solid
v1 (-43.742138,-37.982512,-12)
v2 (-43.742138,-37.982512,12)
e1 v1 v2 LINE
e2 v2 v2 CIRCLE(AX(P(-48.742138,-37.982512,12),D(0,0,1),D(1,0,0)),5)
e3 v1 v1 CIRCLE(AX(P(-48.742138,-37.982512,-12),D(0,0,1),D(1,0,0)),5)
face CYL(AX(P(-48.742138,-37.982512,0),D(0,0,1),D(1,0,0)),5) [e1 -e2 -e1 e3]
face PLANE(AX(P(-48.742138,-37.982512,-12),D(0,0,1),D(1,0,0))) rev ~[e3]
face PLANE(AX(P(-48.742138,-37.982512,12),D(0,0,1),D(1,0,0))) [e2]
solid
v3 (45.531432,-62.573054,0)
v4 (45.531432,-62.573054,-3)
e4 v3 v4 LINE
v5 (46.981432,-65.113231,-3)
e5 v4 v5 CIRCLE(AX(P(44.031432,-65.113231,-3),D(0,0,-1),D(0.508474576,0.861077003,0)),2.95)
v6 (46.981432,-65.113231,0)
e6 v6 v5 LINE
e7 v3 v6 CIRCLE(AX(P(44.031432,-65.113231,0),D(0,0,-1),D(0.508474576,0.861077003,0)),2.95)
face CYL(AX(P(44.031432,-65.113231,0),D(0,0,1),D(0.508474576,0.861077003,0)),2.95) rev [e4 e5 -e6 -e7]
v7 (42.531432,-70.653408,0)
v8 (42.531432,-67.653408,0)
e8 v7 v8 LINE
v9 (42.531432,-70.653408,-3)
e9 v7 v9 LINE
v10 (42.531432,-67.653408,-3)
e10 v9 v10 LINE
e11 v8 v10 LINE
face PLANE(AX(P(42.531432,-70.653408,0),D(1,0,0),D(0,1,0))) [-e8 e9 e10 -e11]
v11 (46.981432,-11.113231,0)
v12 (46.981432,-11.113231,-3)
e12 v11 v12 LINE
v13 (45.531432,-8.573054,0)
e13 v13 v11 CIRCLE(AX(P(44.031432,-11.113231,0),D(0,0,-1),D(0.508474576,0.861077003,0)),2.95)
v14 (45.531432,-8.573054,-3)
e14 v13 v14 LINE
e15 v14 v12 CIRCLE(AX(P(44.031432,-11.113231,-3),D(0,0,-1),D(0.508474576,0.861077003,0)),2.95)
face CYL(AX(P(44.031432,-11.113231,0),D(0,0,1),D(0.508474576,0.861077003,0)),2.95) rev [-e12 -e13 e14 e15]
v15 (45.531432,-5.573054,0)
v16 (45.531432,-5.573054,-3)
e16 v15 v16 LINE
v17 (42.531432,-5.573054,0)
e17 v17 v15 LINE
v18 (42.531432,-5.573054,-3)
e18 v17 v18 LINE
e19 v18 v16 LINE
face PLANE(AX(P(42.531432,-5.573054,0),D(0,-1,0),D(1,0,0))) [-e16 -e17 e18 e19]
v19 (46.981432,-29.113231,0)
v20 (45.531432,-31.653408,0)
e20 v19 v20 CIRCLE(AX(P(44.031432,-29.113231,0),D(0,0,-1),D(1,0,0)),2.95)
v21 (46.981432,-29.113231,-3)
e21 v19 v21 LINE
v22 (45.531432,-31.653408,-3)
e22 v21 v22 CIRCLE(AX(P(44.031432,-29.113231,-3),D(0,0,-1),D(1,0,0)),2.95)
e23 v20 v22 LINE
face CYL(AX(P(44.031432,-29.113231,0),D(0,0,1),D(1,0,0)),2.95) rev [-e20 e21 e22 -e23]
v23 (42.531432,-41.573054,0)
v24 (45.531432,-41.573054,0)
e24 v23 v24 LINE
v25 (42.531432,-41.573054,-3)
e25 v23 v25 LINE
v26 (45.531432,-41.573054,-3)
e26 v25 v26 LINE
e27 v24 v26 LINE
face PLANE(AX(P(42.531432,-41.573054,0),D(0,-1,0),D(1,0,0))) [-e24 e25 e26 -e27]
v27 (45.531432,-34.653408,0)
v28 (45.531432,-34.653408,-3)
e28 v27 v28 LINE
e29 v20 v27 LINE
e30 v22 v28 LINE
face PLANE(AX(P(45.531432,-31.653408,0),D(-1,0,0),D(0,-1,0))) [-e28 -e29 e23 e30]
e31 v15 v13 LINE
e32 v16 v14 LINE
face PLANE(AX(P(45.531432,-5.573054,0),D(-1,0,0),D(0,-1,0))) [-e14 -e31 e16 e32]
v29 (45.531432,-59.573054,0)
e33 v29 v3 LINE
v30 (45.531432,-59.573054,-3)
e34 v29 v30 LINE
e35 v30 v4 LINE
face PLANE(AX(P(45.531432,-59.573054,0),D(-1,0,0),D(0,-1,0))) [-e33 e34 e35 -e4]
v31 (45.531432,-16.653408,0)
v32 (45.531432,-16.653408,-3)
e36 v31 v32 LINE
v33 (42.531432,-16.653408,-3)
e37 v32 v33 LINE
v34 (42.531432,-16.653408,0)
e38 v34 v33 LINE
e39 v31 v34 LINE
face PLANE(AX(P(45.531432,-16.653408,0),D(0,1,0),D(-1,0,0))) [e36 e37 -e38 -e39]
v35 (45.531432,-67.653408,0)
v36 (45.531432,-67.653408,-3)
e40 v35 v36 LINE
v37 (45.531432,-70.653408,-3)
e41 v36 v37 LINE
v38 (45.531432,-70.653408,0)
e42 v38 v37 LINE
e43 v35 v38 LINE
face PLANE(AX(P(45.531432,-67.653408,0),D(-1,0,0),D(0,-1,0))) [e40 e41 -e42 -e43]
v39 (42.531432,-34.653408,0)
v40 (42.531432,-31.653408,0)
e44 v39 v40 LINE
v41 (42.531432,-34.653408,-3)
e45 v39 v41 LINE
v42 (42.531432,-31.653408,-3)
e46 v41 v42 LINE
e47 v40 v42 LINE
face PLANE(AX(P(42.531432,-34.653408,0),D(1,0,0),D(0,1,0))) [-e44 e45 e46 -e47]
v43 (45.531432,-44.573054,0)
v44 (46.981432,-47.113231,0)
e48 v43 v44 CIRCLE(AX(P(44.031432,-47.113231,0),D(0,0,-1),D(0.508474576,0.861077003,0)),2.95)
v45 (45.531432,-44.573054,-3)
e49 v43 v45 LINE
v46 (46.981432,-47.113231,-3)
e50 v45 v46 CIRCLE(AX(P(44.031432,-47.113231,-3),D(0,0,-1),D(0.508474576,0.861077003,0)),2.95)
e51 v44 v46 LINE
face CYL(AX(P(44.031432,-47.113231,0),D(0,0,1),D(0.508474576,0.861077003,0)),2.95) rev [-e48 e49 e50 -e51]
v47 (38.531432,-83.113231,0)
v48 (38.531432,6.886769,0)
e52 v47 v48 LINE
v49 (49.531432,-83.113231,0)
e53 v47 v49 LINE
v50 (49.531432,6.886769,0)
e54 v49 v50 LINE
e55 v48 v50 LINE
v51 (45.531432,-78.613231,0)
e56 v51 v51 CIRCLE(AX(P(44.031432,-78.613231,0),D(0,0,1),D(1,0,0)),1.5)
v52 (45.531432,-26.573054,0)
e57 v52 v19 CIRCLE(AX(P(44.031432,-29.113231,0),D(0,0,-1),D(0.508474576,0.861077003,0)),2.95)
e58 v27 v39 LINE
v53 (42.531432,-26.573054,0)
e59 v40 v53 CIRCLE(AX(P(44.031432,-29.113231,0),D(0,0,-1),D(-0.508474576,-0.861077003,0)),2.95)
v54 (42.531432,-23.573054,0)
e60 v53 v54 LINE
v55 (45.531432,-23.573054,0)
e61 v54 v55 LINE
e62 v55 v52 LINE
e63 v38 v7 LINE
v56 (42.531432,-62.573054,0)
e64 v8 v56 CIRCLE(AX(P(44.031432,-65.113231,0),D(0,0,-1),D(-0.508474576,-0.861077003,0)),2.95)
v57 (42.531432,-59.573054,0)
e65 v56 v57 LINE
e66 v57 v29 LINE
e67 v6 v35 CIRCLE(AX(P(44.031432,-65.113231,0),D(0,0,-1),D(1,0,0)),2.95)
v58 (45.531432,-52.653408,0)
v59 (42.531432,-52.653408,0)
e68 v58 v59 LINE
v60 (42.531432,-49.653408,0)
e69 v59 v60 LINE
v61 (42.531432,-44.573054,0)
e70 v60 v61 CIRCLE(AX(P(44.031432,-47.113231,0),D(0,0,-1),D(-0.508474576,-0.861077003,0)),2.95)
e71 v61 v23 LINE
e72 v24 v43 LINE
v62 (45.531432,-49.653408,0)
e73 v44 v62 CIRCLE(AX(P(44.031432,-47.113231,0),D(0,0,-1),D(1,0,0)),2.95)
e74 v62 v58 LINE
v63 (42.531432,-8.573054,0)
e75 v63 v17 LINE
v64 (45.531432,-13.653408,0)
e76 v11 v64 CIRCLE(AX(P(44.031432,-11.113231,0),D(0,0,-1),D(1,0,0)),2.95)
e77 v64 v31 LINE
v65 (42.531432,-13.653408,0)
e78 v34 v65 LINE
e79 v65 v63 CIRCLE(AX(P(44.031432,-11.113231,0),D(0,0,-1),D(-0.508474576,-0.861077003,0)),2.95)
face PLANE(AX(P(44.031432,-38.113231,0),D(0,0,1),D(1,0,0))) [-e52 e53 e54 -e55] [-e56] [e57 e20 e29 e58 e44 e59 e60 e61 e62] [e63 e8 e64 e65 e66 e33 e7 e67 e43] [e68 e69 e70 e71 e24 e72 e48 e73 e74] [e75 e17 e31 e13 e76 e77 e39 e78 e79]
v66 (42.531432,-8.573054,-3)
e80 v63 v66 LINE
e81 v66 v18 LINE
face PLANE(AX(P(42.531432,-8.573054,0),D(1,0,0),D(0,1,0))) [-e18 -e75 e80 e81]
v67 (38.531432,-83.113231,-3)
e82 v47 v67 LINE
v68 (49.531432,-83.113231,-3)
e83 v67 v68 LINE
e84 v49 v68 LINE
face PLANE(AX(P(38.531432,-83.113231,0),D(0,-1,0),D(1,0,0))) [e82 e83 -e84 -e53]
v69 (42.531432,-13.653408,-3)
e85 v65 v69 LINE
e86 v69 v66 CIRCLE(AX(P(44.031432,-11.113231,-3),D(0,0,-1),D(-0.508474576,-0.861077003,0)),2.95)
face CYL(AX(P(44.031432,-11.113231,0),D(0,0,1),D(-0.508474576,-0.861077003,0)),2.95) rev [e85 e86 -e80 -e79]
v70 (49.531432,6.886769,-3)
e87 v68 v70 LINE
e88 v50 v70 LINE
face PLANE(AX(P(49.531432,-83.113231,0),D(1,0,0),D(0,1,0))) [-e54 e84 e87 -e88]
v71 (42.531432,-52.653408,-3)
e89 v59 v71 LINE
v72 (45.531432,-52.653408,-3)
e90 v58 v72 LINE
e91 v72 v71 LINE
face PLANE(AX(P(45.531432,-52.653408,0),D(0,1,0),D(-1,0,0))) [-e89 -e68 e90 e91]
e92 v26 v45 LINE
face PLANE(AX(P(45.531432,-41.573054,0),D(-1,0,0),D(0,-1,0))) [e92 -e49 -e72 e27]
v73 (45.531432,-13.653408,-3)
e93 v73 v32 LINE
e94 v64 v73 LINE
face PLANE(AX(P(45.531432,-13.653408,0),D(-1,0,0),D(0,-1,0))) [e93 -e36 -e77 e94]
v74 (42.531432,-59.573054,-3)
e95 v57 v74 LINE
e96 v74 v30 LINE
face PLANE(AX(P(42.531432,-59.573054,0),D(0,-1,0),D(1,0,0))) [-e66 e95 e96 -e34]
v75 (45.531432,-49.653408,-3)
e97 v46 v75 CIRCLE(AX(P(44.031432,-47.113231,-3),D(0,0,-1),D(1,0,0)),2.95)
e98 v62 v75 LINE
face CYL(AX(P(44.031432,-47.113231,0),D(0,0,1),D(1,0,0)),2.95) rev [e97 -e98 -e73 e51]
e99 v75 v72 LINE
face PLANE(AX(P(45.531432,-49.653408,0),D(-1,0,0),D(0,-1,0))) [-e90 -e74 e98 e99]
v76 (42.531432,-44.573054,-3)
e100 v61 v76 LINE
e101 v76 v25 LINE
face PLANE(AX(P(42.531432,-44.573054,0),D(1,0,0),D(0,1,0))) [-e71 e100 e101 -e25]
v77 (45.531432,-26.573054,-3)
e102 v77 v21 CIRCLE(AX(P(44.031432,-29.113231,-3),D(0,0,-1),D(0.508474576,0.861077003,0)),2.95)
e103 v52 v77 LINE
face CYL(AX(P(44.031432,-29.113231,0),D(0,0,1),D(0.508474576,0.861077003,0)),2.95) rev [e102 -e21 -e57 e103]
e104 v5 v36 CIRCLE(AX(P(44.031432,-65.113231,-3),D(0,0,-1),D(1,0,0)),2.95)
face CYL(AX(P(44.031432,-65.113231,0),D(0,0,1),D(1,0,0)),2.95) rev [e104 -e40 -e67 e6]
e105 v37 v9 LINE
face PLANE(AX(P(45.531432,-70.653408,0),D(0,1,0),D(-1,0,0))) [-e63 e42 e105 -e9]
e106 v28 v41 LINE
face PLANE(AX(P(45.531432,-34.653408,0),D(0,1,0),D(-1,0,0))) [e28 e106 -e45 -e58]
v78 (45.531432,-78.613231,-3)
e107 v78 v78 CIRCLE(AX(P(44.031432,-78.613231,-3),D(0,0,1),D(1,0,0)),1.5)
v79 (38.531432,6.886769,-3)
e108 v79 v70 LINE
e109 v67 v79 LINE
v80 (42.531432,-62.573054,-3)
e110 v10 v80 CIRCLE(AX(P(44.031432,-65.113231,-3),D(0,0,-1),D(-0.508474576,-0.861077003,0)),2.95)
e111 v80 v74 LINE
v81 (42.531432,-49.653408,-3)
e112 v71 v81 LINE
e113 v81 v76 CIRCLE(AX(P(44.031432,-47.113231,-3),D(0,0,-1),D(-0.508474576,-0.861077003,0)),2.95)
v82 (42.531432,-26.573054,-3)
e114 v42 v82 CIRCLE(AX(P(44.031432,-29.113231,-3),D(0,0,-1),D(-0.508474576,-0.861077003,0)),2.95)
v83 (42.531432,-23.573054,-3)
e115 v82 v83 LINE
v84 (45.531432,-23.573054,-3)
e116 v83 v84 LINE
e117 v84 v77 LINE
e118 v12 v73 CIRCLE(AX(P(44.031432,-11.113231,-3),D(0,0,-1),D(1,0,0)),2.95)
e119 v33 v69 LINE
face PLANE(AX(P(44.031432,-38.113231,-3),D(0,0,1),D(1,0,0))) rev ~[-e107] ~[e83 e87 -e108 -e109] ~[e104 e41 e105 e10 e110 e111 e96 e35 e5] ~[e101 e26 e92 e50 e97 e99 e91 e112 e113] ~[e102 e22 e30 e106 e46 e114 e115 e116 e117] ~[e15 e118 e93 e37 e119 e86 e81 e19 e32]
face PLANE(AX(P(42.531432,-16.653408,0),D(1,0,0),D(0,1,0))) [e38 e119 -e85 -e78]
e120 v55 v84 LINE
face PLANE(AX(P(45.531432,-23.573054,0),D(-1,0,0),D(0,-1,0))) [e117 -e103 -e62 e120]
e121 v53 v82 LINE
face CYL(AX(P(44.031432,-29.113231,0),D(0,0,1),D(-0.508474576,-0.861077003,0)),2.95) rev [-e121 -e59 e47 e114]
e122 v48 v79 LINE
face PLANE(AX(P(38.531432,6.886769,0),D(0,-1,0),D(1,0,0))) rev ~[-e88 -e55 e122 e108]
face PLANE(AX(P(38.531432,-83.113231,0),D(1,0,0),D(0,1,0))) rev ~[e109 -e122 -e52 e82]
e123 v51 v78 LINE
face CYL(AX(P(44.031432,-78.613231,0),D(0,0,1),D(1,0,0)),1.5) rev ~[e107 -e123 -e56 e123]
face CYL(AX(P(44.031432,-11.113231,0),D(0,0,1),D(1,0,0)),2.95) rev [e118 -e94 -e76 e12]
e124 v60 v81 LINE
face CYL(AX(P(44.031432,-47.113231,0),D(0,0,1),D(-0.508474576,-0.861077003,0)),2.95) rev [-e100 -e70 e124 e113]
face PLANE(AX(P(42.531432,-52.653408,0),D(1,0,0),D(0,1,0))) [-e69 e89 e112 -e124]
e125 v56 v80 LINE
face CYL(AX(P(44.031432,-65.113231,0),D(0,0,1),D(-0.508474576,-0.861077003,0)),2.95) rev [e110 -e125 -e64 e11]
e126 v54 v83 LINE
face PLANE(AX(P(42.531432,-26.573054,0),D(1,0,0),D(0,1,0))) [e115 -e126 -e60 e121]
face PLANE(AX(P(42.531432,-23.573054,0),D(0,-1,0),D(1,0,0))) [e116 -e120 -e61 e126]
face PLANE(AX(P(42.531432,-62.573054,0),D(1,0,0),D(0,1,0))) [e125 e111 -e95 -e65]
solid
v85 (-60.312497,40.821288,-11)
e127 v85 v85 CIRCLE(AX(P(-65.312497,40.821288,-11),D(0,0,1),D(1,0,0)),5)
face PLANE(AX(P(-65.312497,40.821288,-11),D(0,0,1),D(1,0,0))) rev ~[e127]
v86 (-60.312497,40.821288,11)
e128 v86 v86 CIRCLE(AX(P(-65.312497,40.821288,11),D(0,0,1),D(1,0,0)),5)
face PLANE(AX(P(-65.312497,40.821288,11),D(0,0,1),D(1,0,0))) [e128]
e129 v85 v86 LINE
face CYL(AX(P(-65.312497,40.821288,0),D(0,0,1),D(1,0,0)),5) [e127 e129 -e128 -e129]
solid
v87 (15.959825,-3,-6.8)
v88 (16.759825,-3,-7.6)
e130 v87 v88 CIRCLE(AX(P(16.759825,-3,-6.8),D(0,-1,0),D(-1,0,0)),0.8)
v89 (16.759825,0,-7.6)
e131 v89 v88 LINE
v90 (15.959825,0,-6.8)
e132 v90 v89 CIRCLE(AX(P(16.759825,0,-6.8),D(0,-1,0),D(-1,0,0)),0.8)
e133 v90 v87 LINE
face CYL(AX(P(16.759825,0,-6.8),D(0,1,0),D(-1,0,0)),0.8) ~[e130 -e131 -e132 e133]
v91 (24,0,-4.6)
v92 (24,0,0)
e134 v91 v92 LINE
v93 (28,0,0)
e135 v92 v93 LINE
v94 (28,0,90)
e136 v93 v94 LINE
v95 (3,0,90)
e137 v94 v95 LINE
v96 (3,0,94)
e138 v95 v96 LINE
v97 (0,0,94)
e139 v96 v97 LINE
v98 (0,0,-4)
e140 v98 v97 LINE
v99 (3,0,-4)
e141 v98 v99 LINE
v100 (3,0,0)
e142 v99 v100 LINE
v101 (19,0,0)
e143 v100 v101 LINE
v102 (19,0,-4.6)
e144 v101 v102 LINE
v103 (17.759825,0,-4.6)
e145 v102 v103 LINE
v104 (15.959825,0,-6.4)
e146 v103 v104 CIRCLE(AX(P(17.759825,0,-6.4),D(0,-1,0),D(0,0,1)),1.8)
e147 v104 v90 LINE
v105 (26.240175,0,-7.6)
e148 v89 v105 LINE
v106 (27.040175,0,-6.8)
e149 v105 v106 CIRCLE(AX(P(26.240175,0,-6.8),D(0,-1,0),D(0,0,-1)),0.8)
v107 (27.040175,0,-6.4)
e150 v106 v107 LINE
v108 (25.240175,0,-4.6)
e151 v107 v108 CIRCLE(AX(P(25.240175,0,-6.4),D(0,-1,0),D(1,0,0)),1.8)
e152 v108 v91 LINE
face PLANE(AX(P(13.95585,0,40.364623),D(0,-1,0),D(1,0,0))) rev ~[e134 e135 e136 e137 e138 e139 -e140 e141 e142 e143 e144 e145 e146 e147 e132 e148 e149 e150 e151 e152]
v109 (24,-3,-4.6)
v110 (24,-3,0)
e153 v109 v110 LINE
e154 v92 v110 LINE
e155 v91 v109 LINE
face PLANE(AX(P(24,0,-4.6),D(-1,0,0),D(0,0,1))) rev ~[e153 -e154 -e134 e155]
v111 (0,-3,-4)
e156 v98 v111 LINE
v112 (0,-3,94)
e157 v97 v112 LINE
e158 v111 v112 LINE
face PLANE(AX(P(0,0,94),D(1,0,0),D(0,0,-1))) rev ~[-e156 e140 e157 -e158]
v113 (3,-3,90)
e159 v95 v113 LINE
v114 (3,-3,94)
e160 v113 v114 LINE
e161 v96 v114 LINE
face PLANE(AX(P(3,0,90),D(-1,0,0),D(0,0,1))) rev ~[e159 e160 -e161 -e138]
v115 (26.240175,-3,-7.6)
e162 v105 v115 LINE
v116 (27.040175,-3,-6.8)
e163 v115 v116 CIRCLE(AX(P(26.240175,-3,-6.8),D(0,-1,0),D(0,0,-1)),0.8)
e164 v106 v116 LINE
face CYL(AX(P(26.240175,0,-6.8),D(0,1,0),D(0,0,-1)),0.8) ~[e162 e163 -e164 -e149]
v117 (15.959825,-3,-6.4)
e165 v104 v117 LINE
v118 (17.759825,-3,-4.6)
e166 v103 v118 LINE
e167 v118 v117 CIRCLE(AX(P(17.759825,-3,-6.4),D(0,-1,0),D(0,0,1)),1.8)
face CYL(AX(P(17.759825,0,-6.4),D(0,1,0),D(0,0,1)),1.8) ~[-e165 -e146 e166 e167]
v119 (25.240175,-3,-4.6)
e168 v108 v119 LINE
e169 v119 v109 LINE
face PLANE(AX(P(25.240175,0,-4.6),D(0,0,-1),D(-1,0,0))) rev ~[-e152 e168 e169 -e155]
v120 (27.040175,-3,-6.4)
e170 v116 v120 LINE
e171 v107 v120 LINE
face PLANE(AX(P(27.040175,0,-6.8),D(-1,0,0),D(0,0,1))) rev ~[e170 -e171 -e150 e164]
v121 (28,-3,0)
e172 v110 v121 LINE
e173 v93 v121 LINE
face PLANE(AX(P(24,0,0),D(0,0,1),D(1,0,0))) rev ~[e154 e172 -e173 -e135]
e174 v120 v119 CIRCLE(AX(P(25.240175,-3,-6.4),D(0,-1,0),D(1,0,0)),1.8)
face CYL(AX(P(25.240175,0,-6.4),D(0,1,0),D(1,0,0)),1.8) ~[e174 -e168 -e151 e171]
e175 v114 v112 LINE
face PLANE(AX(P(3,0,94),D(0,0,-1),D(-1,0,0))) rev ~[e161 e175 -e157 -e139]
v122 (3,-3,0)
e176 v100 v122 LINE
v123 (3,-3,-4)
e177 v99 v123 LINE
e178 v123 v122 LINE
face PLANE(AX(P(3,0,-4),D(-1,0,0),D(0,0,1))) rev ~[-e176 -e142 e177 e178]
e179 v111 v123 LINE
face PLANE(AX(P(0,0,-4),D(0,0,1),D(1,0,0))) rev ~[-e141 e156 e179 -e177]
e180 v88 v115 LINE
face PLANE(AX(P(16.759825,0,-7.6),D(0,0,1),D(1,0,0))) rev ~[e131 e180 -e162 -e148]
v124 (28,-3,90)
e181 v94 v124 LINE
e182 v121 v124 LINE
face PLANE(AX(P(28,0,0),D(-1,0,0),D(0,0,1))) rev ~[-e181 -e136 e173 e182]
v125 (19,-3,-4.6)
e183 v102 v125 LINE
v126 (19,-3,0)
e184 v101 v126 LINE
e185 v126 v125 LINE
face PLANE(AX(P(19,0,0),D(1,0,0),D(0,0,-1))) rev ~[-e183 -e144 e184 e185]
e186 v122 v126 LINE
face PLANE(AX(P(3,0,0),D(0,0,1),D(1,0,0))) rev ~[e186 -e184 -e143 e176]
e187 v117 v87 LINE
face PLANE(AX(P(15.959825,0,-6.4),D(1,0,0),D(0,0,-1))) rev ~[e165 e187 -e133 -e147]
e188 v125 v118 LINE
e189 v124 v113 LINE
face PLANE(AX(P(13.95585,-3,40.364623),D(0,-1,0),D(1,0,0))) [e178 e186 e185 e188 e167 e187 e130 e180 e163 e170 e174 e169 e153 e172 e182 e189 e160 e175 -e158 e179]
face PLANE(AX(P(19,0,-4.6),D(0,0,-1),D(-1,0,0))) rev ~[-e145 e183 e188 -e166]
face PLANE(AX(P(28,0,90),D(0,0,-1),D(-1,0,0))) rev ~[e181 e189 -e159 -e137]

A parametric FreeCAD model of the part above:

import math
import FreeCAD as App
import Part
import Sketcher
from FreeCAD import Vector
Q = App.Units.Quantity

doc = App.newDocument("Part")
body = doc.addObject("PartDesign::Body", "Body")

sketch1 = body.newObject("Sketcher::SketchObject", "Sketch")
sketch1.AttachmentSupport = (doc.getObject("XZ_Plane"), [""])
sketch1.MapMode = "FlatFace"
sketch1.addGeometry(Part.LineSegment(Vector(0, -4, 0), Vector(3, -4, 0)), False)
sketch1.addGeometry(Part.LineSegment(Vector(3, -4, 0), Vector(3, 0, 0)), False)
sketch1.addGeometry(Part.LineSegment(Vector(3, 0, 0), Vector(19, 0, 0)), False)
sketch1.addGeometry(Part.LineSegment(Vector(19, 0, 0), Vector(19, -4.6, 0)), False)
sketch1.addGeometry(Part.LineSegment(Vector(19, -4.6, 0), Vector(17.76, -4.6, 0)), False)
sketch1.addGeometry(Part.ArcOfCircle(Part.Circle(Vector(17.76, -6.4, 0), Vector(0, 0, 1), 1.8), math.radians(90), math.radians(180)), False)
sketch1.addGeometry(Part.LineSegment(Vector(15.96, -6.4, 0), Vector(15.96, -6.8, 0)), False)
sketch1.addGeometry(Part.ArcOfCircle(Part.Circle(Vector(16.76, -6.8, 0), Vector(0, 0, 1), 0.8), math.radians(180), math.radians(270)), False)
sketch1.addGeometry(Part.LineSegment(Vector(16.76, -7.6, 0), Vector(26.24, -7.6, 0)), False)
sketch1.addGeometry(Part.ArcOfCircle(Part.Circle(Vector(26.24, -6.8, 0), Vector(0, 0, 1), 0.8), math.radians(-90), math.radians(0)), False)
sketch1.addGeometry(Part.LineSegment(Vector(27.04, -6.8, 0), Vector(27.04, -6.4, 0)), False)
sketch1.addGeometry(Part.ArcOfCircle(Part.Circle(Vector(25.24, -6.4, 0), Vector(0, 0, 1), 1.8), math.radians(0), math.radians(90)), False)
sketch1.addGeometry(Part.LineSegment(Vector(25.24, -4.6, 0), Vector(24, -4.6, 0)), False)
sketch1.addGeometry(Part.LineSegment(Vector(24, -4.6, 0), Vector(24, 0, 0)), False)
sketch1.addGeometry(Part.LineSegment(Vector(24, 0, 0), Vector(28, 0, 0)), False)
sketch1.addGeometry(Part.LineSegment(Vector(28, 0, 0), Vector(28, 90, 0)), False)
sketch1.addGeometry(Part.LineSegment(Vector(28, 90, 0), Vector(3, 90, 0)), False)
sketch1.addGeometry(Part.LineSegment(Vector(3, 90, 0), Vector(3, 94, 0)), False)
sketch1.addGeometry(Part.LineSegment(Vector(3, 94, 0), Vector(0, 94, 0)), False)
sketch1.addGeometry(Part.LineSegment(Vector(0, 94, 0), Vector(0, -4, 0)), False)
sketch1.addConstraint(Sketcher.Constraint("Coincident", 0, 2, 1, 1))
sketch1.addConstraint(Sketcher.Constraint("Coincident", 1, 2, 2, 1))
sketch1.addConstraint(Sketcher.Constraint("Coincident", 2, 2, 3, 1))
sketch1.addConstraint(Sketcher.Constraint("Coincident", 3, 2, 4, 1))
sketch1.addConstraint(Sketcher.Constraint("Tangent", 4, 2, 5, 1))
sketch1.addConstraint(Sketcher.Constraint("Tangent", 5, 2, 6, 1))
sketch1.addConstraint(Sketcher.Constraint("Tangent", 6, 2, 7, 1))
sketch1.addConstraint(Sketcher.Constraint("Tangent", 7, 2, 8, 1))
sketch1.addConstraint(Sketcher.Constraint("Tangent", 8, 2, 9, 1))
sketch1.addConstraint(Sketcher.Constraint("Tangent", 9, 2, 10, 1))
sketch1.addConstraint(Sketcher.Constraint("Tangent", 10, 2, 11, 1))
sketch1.addConstraint(Sketcher.Constraint("Tangent", 11, 2, 12, 1))
sketch1.addConstraint(Sketcher.Constraint("Coincident", 12, 2, 13, 1))
sketch1.addConstraint(Sketcher.Constraint("Coincident", 13, 2, 14, 1))
sketch1.addConstraint(Sketcher.Constraint("Coincident", 14, 2, 15, 1))
sketch1.addConstraint(Sketcher.Constraint("Coincident", 15, 2, 16, 1))
sketch1.addConstraint(Sketcher.Constraint("Coincident", 16, 2, 17, 1))
sketch1.addConstraint(Sketcher.Constraint("Coincident", 17, 2, 18, 1))
sketch1.addConstraint(Sketcher.Constraint("Coincident", 18, 2, 19, 1))
sketch1.addConstraint(Sketcher.Constraint("Coincident", 19, 2, 0, 1))
sketch1.addConstraint(Sketcher.Constraint("Horizontal", 0))
sketch1.addConstraint(Sketcher.Constraint("Vertical", 1))
sketch1.addConstraint(Sketcher.Constraint("Horizontal", 2))
sketch1.addConstraint(Sketcher.Constraint("Vertical", 3))
sketch1.addConstraint(Sketcher.Constraint("Horizontal", 4))
sketch1.addConstraint(Sketcher.Constraint("Vertical", 6))
sketch1.addConstraint(Sketcher.Constraint("Horizontal", 8))
sketch1.addConstraint(Sketcher.Constraint("Vertical", 10))
sketch1.addConstraint(Sketcher.Constraint("Horizontal", 12))
sketch1.addConstraint(Sketcher.Constraint("Vertical", 13))
sketch1.addConstraint(Sketcher.Constraint("Horizontal", 14))
sketch1.addConstraint(Sketcher.Constraint("Vertical", 15))
sketch1.addConstraint(Sketcher.Constraint("Horizontal", 16))
sketch1.addConstraint(Sketcher.Constraint("Vertical", 17))
sketch1.addConstraint(Sketcher.Constraint("Horizontal", 18))
sketch1.addConstraint(Sketcher.Constraint("Vertical", 19))
sketch1.addConstraint(Sketcher.Constraint("Equal", 7, 9))
sketch1.addConstraint(Sketcher.Constraint("Equal", 5, 11))
sketch1.addConstraint(Sketcher.Constraint("PointOnObject", 1, 2, -1))
sketch1.addConstraint(Sketcher.Constraint("PointOnObject", 13, 2, -1))
sketch1.addConstraint(Sketcher.Constraint("PointOnObject", 18, 2, -2))
sketch1.addConstraint(Sketcher.Constraint("Horizontal", 5, 3, 11, 3))
sketch1.addConstraint(Sketcher.Constraint("Vertical", 1, 2, 16, 2))
sketch1.addConstraint(Sketcher.Constraint("Equal", 4, 12))
sketch1.addConstraint(Sketcher.Constraint("Equal", 14, 1))
sketch1.addConstraint(Sketcher.Constraint("Equal", 1, 17))
sketch1.addConstraint(Sketcher.Constraint("Radius", 5, Q("1.8 mm")))
sketch1.addConstraint(Sketcher.Constraint("Radius", 7, Q("0.8 mm")))
sketch1.addConstraint(Sketcher.Constraint("DistanceX", 0, 1, 0, 2, Q("3 mm")))
sketch1.addConstraint(Sketcher.Constraint("DistanceX", 2, 1, 2, 2, Q("16 mm")))
sketch1.addConstraint(Sketcher.Constraint("DistanceX", 14, 1, 14, 2, Q("4 mm")))
sketch1.addConstraint(Sketcher.Constraint("DistanceX", 16, 2, 16, 1, Q("25 mm")))
sketch1.addConstraint(Sketcher.Constraint("DistanceY", 15, 1, 15, 2, Q("90 mm")))
sketch1.addConstraint(Sketcher.Constraint("DistanceY", 3, 2, 3, 1, Q("4.6 mm")))
sketch1.addConstraint(Sketcher.Constraint("DistanceY", 6, 2, 6, 1, Q("0.4 mm")))
sketch1.addConstraint(Sketcher.Constraint("DistanceX", 8, 1, 8, 2, Q("9.48035 mm")))
pad1 = body.newObject("PartDesign::Pad", "Pad")
pad1.Profile = sketch1
pad1.Length = 3

sketch2 = body.newObject("Sketcher::SketchObject", "Sketch001")
sketch2.AttachmentSupport = (doc.getObject("YZ_Plane"), [""])
sketch2.MapMode = "FlatFace"
sketch2.addGeometry(Part.LineSegment(Vector(0, 0, 0), Vector(0, -4, 0)), False)
sketch2.addGeometry(Part.LineSegment(Vector(0, -4, 0), Vector(-3, -4, 0)), False)
sketch2.addGeometry(Part.LineSegment(Vector(-3, -4, 0), Vector(-3, 0, 0)), False)
sketch2.addGeometry(Part.LineSegment(Vector(-3, 0, 0), Vector(0, 0, 0)), False)
sketch2.addGeometry(Part.LineSegment(Vector(0, 94, 0), Vector(0, 90, 0)), False)
sketch2.addGeometry(Part.LineSegment(Vector(0, 90, 0), Vector(-3, 90, 0)), False)
sketch2.addGeometry(Part.LineSegment(Vector(-3, 90, 0), Vector(-3, 94, 0)), False)
sketch2.addGeometry(Part.LineSegment(Vector(-3, 94, 0), Vector(0, 94, 0)), False)
sketch2.addConstraint(Sketcher.Constraint("Coincident", 0, 2, 1, 1))
sketch2.addConstraint(Sketcher.Constraint("Coincident", 1, 2, 2, 1))
sketch2.addConstraint(Sketcher.Constraint("Coincident", 2, 2, 3, 1))
sketch2.addConstraint(Sketcher.Constraint("Coincident", 3, 2, 0, 1))
sketch2.addConstraint(Sketcher.Constraint("Coincident", 4, 2, 5, 1))
sketch2.addConstraint(Sketcher.Constraint("Coincident", 5, 2, 6, 1))
sketch2.addConstraint(Sketcher.Constraint("Coincident", 6, 2, 7, 1))
sketch2.addConstraint(Sketcher.Constraint("Coincident", 7, 2, 4, 1))
sketch2.addConstraint(Sketcher.Constraint("Vertical", 0))
sketch2.addConstraint(Sketcher.Constraint("Horizontal", 1))
sketch2.addConstraint(Sketcher.Constraint("Vertical", 2))
sketch2.addConstraint(Sketcher.Constraint("Horizontal", 3))
sketch2.addConstraint(Sketcher.Constraint("Vertical", 4))
sketch2.addConstraint(Sketcher.Constraint("Horizontal", 5))
sketch2.addConstraint(Sketcher.Constraint("Vertical", 6))
sketch2.addConstraint(Sketcher.Constraint("Horizontal", 7))
sketch2.addConstraint(Sketcher.Constraint("Coincident", 3, 2, -1, 1))
sketch2.addConstraint(Sketcher.Constraint("PointOnObject", 4, 2, -2))
sketch2.addConstraint(Sketcher.Constraint("Vertical", 2, 2, 5, 2))
sketch2.addConstraint(Sketcher.Constraint("Equal", 2, 4))
sketch2.addConstraint(Sketcher.Constraint("DistanceX", 1, 2, 1, 1, Q("3 mm")))
sketch2.addConstraint(Sketcher.Constraint("DistanceY", 0, 2, 0, 1, Q("4 mm")))
sketch2.addConstraint(Sketcher.Constraint("DistanceY", -1, 1, 4, 2, Q("90 mm")))
pad2 = body.newObject("PartDesign::Pad", "Pad001")
pad2.Profile = sketch2
pad2.Length = 3
body2 = doc.addObject("PartDesign::Body", "Body001")

sketch3 = body2.newObject("Sketcher::SketchObject", "Sketch002")
sketch3.AttachmentSupport = (doc.getObject("XY_Plane001"), [""])
sketch3.MapMode = "FlatFace"
sketch3.addGeometry(Part.LineSegment(Vector(38.5, 6.9, 0), Vector(38.5, -83.1, 0)), False)
sketch3.addGeometry(Part.LineSegment(Vector(38.5, -83.1, 0), Vector(49.5, -83.1, 0)), False)
sketch3.addGeometry(Part.LineSegment(Vector(49.5, -83.1, 0), Vector(49.5, 6.9, 0)), False)
sketch3.addGeometry(Part.LineSegment(Vector(49.5, 6.9, 0), Vector(38.5, 6.9, 0)), False)
sketch3.addGeometry(Part.LineSegment(Vector(45.5, -41.6, 0), Vector(45.5, -44.6, 0)), False)
sketch3.addGeometry(Part.ArcOfCircle(Part.Circle(Vector(44, -47.1, 0), Vector(0, 0, 1), 3), math.radians(0), math.radians(59)), False)
sketch3.addGeometry(Part.ArcOfCircle(Part.Circle(Vector(44, -47.1, 0), Vector(0, 0, 1), 3), math.radians(-59), math.radians(0)), False)
sketch3.addGeometry(Part.LineSegment(Vector(45.5, -49.7, 0), Vector(45.5, -52.7, 0)), False)
sketch3.addGeometry(Part.LineSegment(Vector(45.5, -52.7, 0), Vector(42.5, -52.7, 0)), False)
sketch3.addGeometry(Part.LineSegment(Vector(42.5, -52.7, 0), Vector(42.5, -49.7, 0)), False)
sketch3.addGeometry(Part.ArcOfCircle(Part.Circle(Vector(44, -47.1, 0), Vector(0, 0, 1), 3), math.radians(121), math.radians(239)), False)
sketch3.addGeometry(Part.LineSegment(Vector(42.5, -44.6, 0), Vector(42.5, -41.6, 0)), False)
sketch3.addGeometry(Part.LineSegment(Vector(42.5, -41.6, 0), Vector(45.5, -41.6, 0)), False)
sketch3.addGeometry(Part.Circle(Vector(44, -78.6, 0), Vector(0, 0, 1), 1.5), False)
sketch3.addGeometry(Part.LineSegment(Vector(45.5, -59.6, 0), Vector(45.5, -62.6, 0)), False)
sketch3.addGeometry(Part.ArcOfCircle(Part.Circle(Vector(44, -65.1, 0), Vector(0, 0, 1), 3), math.radians(0), math.radians(59)), False)
sketch3.addGeometry(Part.ArcOfCircle(Part.Circle(Vector(44, -65.1, 0), Vector(0, 0, 1), 3), math.radians(-59), math.radians(0)), False)
sketch3.addGeometry(Part.LineSegment(Vector(45.5, -67.7, 0), Vector(45.5, -70.7, 0)), False)
sketch3.addGeometry(Part.LineSegment(Vector(45.5, -70.7, 0), Vector(42.5, -70.7, 0)), False)
sketch3.addGeometry(Part.LineSegment(Vector(42.5, -70.7, 0), Vector(42.5, -67.7, 0)), False)
sketch3.addGeometry(Part.ArcOfCircle(Part.Circle(Vector(44, -65.1, 0), Vector(0, 0, 1), 3), math.radians(121), math.radians(239)), False)
sketch3.addGeometry(Part.LineSegment(Vector(42.5, -62.6, 0), Vector(42.5, -59.6, 0)), False)
sketch3.addGeometry(Part.LineSegment(Vector(42.5, -59.6, 0), Vector(45.5, -59.6, 0)), False)
sketch3.addGeometry(Part.LineSegment(Vector(45.5, -23.6, 0), Vector(45.5, -26.6, 0)), False)
sketch3.addGeometry(Part.ArcOfCircle(Part.Circle(Vector(44, -29.1, 0), Vector(0, 0, 1), 3), math.radians(0), math.radians(59)), False)
sketch3.addGeometry(Part.ArcOfCircle(Part.Circle(Vector(44, -29.1, 0), Vector(0, 0, 1), 3), math.radians(-59), math.radians(0)), False)
sketch3.addGeometry(Part.LineSegment(Vector(45.5, -31.7, 0), Vector(45.5, -34.7, 0)), False)
sketch3.addGeometry(Part.LineSegment(Vector(45.5, -34.7, 0), Vector(42.5, -34.7, 0)), False)
sketch3.addGeometry(Part.LineSegment(Vector(42.5, -34.7, 0), Vector(42.5, -31.7, 0)), False)
sketch3.addGeometry(Part.ArcOfCircle(Part.Circle(Vector(44, -29.1, 0), Vector(0, 0, 1), 3), math.radians(121), math.radians(239)), False)
sketch3.addGeometry(Part.LineSegment(Vector(42.5, -26.6, 0), Vector(42.5, -23.6, 0)), False)
sketch3.addGeometry(Part.LineSegment(Vector(42.5, -23.6, 0), Vector(45.5, -23.6, 0)), False)
sketch3.addGeometry(Part.LineSegment(Vector(45.5, -5.6, 0), Vector(45.5, -8.6, 0)), False)
sketch3.addGeometry(Part.ArcOfCircle(Part.Circle(Vector(44, -11.1, 0), Vector(0, 0, 1), 3), math.radians(0), math.radians(59)), False)
sketch3.addGeometry(Part.ArcOfCircle(Part.Circle(Vector(44, -11.1, 0), Vector(0, 0, 1), 3), math.radians(-59), math.radians(0)), False)
sketch3.addGeometry(Part.LineSegment(Vector(45.5, -13.7, 0), Vector(45.5, -16.7, 0)), False)
sketch3.addGeometry(Part.LineSegment(Vector(45.5, -16.7, 0), Vector(42.5, -16.7, 0)), False)
sketch3.addGeometry(Part.LineSegment(Vector(42.5, -16.7, 0), Vector(42.5, -13.7, 0)), False)
sketch3.addGeometry(Part.ArcOfCircle(Part.Circle(Vector(44, -11.1, 0), Vector(0, 0, 1), 3), math.radians(121), math.radians(239)), False)
sketch3.addGeometry(Part.LineSegment(Vector(42.5, -8.6, 0), Vector(42.5, -5.6, 0)), False)
sketch3.addGeometry(Part.LineSegment(Vector(42.5, -5.6, 0), Vector(45.5, -5.6, 0)), False)
sketch3.addConstraint(Sketcher.Constraint("Coincident", 0, 2, 1, 1))
sketch3.addConstraint(Sketcher.Constraint("Coincident", 1, 2, 2, 1))
sketch3.addConstraint(Sketcher.Constraint("Coincident", 2, 2, 3, 1))
sketch3.addConstraint(Sketcher.Constraint("Coincident", 3, 2, 0, 1))
sketch3.addConstraint(Sketcher.Constraint("Coincident", 4, 2, 5, 2))
sketch3.addConstraint(Sketcher.Constraint("Tangent", 5, 1, 6, 2))
sketch3.addConstraint(Sketcher.Constraint("Coincident", 6, 1, 7, 1))
sketch3.addConstraint(Sketcher.Constraint("Coincident", 7, 2, 8, 1))
sketch3.addConstraint(Sketcher.Constraint("Coincident", 8, 2, 9, 1))
sketch3.addConstraint(Sketcher.Constraint("Coincident", 9, 2, 10, 2))
sketch3.addConstraint(Sketcher.Constraint("Coincident", 10, 1, 11, 1))
sketch3.addConstraint(Sketcher.Constraint("Coincident", 11, 2, 12, 1))
sketch3.addConstraint(Sketcher.Constraint("Coincident", 12, 2, 4, 1))
sketch3.addConstraint(Sketcher.Constraint("Coincident", 14, 2, 15, 2))
sketch3.addConstraint(Sketcher.Constraint("Tangent", 15, 1, 16, 2))
sketch3.addConstraint(Sketcher.Constraint("Coincident", 16, 1, 17, 1))
sketch3.addConstraint(Sketcher.Constraint("Coincident", 17, 2, 18, 1))
sketch3.addConstraint(Sketcher.Constraint("Coincident", 18, 2, 19, 1))
sketch3.addConstraint(Sketcher.Constraint("Coincident", 19, 2, 20, 2))
sketch3.addConstraint(Sketcher.Constraint("Coincident", 20, 1, 21, 1))
sketch3.addConstraint(Sketcher.Constraint("Coincident", 21, 2, 22, 1))
sketch3.addConstraint(Sketcher.Constraint("Coincident", 22, 2, 14, 1))
sketch3.addConstraint(Sketcher.Constraint("Coincident", 23, 2, 24, 2))
sketch3.addConstraint(Sketcher.Constraint("Tangent", 24, 1, 25, 2))
sketch3.addConstraint(Sketcher.Constraint("Coincident", 25, 1, 26, 1))
sketch3.addConstraint(Sketcher.Constraint("Coincident", 26, 2, 27, 1))
sketch3.addConstraint(Sketcher.Constraint("Coincident", 27, 2, 28, 1))
sketch3.addConstraint(Sketcher.Constraint("Coincident", 28, 2, 29, 2))
sketch3.addConstraint(Sketcher.Constraint("Coincident", 29, 1, 30, 1))
sketch3.addConstraint(Sketcher.Constraint("Coincident", 30, 2, 31, 1))
sketch3.addConstraint(Sketcher.Constraint("Coincident", 31, 2, 23, 1))
sketch3.addConstraint(Sketcher.Constraint("Coincident", 32, 2, 33, 2))
sketch3.addConstraint(Sketcher.Constraint("Tangent", 33, 1, 34, 2))
sketch3.addConstraint(Sketcher.Constraint("Coincident", 34, 1, 35, 1))
sketch3.addConstraint(Sketcher.Constraint("Coincident", 35, 2, 36, 1))
sketch3.addConstraint(Sketcher.Constraint("Coincident", 36, 2, 37, 1))
sketch3.addConstraint(Sketcher.Constraint("Coincident", 37, 2, 38, 2))
sketch3.addConstraint(Sketcher.Constraint("Coincident", 38, 1, 39, 1))
sketch3.addConstraint(Sketcher.Constraint("Coincident", 39, 2, 40, 1))
sketch3.addConstraint(Sketcher.Constraint("Coincident", 40, 2, 32, 1))
sketch3.addConstraint(Sketcher.Constraint("Vertical", 0))
sketch3.addConstraint(Sketcher.Constraint("Horizontal", 1))
sketch3.addConstraint(Sketcher.Constraint("Vertical", 2))
sketch3.addConstraint(Sketcher.Constraint("Horizontal", 3))
sketch3.addConstraint(Sketcher.Constraint("Vertical", 4))
sketch3.addConstraint(Sketcher.Constraint("Vertical", 7))
sketch3.addConstraint(Sketcher.Constraint("Horizontal", 8))
sketch3.addConstraint(Sketcher.Constraint("Vertical", 9))
sketch3.addConstraint(Sketcher.Constraint("Vertical", 11))
sketch3.addConstraint(Sketcher.Constraint("Horizontal", 12))
sketch3.addConstraint(Sketcher.Constraint("Vertical", 14))
sketch3.addConstraint(Sketcher.Constraint("Vertical", 17))
sketch3.addConstraint(Sketcher.Constraint("Horizontal", 18))
sketch3.addConstraint(Sketcher.Constraint("Vertical", 19))
sketch3.addConstraint(Sketcher.Constraint("Vertical", 21))
sketch3.addConstraint(Sketcher.Constraint("Horizontal", 22))
sketch3.addConstraint(Sketcher.Constraint("Vertical", 23))
sketch3.addConstraint(Sketcher.Constraint("Vertical", 26))
sketch3.addConstraint(Sketcher.Constraint("Horizontal", 27))
sketch3.addConstraint(Sketcher.Constraint("Vertical", 28))
sketch3.addConstraint(Sketcher.Constraint("Vertical", 30))
sketch3.addConstraint(Sketcher.Constraint("Horizontal", 31))
sketch3.addConstraint(Sketcher.Constraint("Vertical", 32))
sketch3.addConstraint(Sketcher.Constraint("Vertical", 35))
sketch3.addConstraint(Sketcher.Constraint("Horizontal", 36))
sketch3.addConstraint(Sketcher.Constraint("Vertical", 37))
sketch3.addConstraint(Sketcher.Constraint("Vertical", 39))
sketch3.addConstraint(Sketcher.Constraint("Horizontal", 40))
sketch3.addConstraint(Sketcher.Constraint("Coincident", 10, 3, 5, 3))
sketch3.addConstraint(Sketcher.Constraint("Coincident", 20, 3, 15, 3))
sketch3.addConstraint(Sketcher.Constraint("Coincident", 29, 3, 24, 3))
sketch3.addConstraint(Sketcher.Constraint("Coincident", 38, 3, 33, 3))
sketch3.addConstraint(Sketcher.Constraint("Equal", 5, 6))
sketch3.addConstraint(Sketcher.Constraint("Equal", 6, 10))
sketch3.addConstraint(Sketcher.Constraint("Equal", 10, 15))
sketch3.addConstraint(Sketcher.Constraint("Equal", 15, 16))
sketch3.addConstraint(Sketcher.Constraint("Equal", 16, 20))
sketch3.addConstraint(Sketcher.Constraint("Equal", 20, 24))
sketch3.addConstraint(Sketcher.Constraint("Equal", 24, 25))
sketch3.addConstraint(Sketcher.Constraint("Equal", 25, 29))
sketch3.addConstraint(Sketcher.Constraint("Equal", 29, 33))
sketch3.addConstraint(Sketcher.Constraint("Equal", 33, 34))
sketch3.addConstraint(Sketcher.Constraint("Equal", 34, 38))
sketch3.addConstraint(Sketcher.Constraint("Horizontal", 10, 3, 5, 1))
sketch3.addConstraint(Sketcher.Constraint("Horizontal", 6, 1, 9, 2))
sketch3.addConstraint(Sketcher.Constraint("Horizontal", 4, 2, 10, 1))
sketch3.addConstraint(Sketcher.Constraint("Horizontal", 20, 3, 15, 1))
sketch3.addConstraint(Sketcher.Constraint("Horizontal", 16, 1, 19, 2))
sketch3.addConstraint(Sketcher.Constraint("Horizontal", 14, 2, 20, 1))
sketch3.addConstraint(Sketcher.Constraint("Horizontal", 29, 3, 24, 1))
sketch3.addConstraint(Sketcher.Constraint("Horizontal", 25, 1, 28, 2))
sketch3.addConstraint(Sketcher.Constraint("Horizontal", 23, 2, 29, 1))
sketch3.addConstraint(Sketcher.Constraint("Horizontal", 38, 3, 33, 1))
sketch3.addConstraint(Sketcher.Constraint("Horizontal", 34, 1, 37, 2))
sketch3.addConstraint(Sketcher.Constraint("Horizontal", 32, 2, 38, 1))
sketch3.addConstraint(Sketcher.Constraint("Vertical", 10, 3, 13, 3))
sketch3.addConstraint(Sketcher.Constraint("Vertical", 13, 3, 15, 3))
sketch3.addConstraint(Sketcher.Constraint("Vertical", 20, 3, 24, 3))
sketch3.addConstraint(Sketcher.Constraint("Vertical", 29, 3, 33, 3))
sketch3.addConstraint(Sketcher.Constraint("Vertical", 4, 2, 6, 1))
sketch3.addConstraint(Sketcher.Constraint("Vertical", 12, 2, 14, 2))
sketch3.addConstraint(Sketcher.Constraint("Vertical", 14, 2, 16, 1))
sketch3.addConstraint(Sketcher.Constraint("Vertical", 22, 2, 23, 2))
sketch3.addConstraint(Sketcher.Constraint("Vertical", 23, 2, 25, 1))
sketch3.addConstraint(Sketcher.Constraint("Vertical", 31, 2, 32, 2))
sketch3.addConstraint(Sketcher.Constraint("Vertical", 32, 2, 34, 1))
sketch3.addConstraint(Sketcher.Constraint("Equal", 40, 4))
sketch3.addConstraint(Sketcher.Constraint("Equal", 4, 7))
sketch3.addConstraint(Sketcher.Constraint("Equal", 11, 14))
sketch3.addConstraint(Sketcher.Constraint("Equal", 14, 17))
sketch3.addConstraint(Sketcher.Constraint("Equal", 21, 23))
sketch3.addConstraint(Sketcher.Constraint("Equal", 23, 26))
sketch3.addConstraint(Sketcher.Constraint("Equal", 30, 32))
sketch3.addConstraint(Sketcher.Constraint("Equal", 32, 35))
sketch3.addConstraint(Sketcher.Constraint("Diameter", 13, Q("3 mm")))
sketch3.addConstraint(Sketcher.Constraint("DistanceX", 1, 1, 1, 2, Q("11 mm")))
sketch3.addConstraint(Sketcher.Constraint("DistanceX", 8, 2, 8, 1, Q("3 mm")))
sketch3.addConstraint(Sketcher.Constraint("DistanceY", 0, 2, 0, 1, Q("90 mm")))
sketch3.addConstraint(Sketcher.Constraint("Radius", 5, Q("2.95 mm")))
sketch3.addConstraint(Sketcher.Constraint("DistanceY", 15, 3, 5, 3, Q("18 mm")))
sketch3.addConstraint(Sketcher.Constraint("DistanceY", 5, 3, 24, 3, Q("18 mm")))
sketch3.addConstraint(Sketcher.Constraint("DistanceY", 24, 3, 33, 3, Q("18 mm")))
sketch3.addConstraint(Sketcher.Constraint("DistanceY", 0, 2, 15, 3, Q("18 mm")))
sketch3.addConstraint(Sketcher.Constraint("DistanceY", 13, 3, 5, 3, Q("31.5 mm")))
sketch3.addConstraint(Sketcher.Constraint("DistanceX", 0, 2, 13, 3, Q("5.5 mm")))
sketch3.addConstraint(Sketcher.Constraint("DistanceY", 5, 3, -1, 1, Q("47.113231 mm")))
sketch3.addConstraint(Sketcher.Constraint("DistanceX", -1, 1, 5, 3, Q("44.031432 mm")))
pad3 = body2.newObject("PartDesign::Pad", "Pad002")
pad3.Profile = sketch3
pad3.Length = 3
pad3.Reversed = True
body3 = doc.addObject("PartDesign::Body", "Body002")

sketch4 = body3.newObject("Sketcher::SketchObject", "Sketch003")
sketch4.AttachmentSupport = (doc.getObject("XY_Plane002"), [""])
sketch4.MapMode = "FlatFace"
sketch4.addGeometry(Part.Circle(Vector(-65, 41, 0), Vector(0, 0, 1), 5), False)
sketch4.addConstraint(Sketcher.Constraint("Diameter", 0, Q("10 mm")))
sketch4.addConstraint(Sketcher.Constraint("DistanceX", 0, 3, -1, 1, Q("65.312497 mm")))
sketch4.addConstraint(Sketcher.Constraint("DistanceY", -1, 1, 0, 3, Q("40.821288 mm")))
pad4 = body3.newObject("PartDesign::Pad", "Pad003")
pad4.Profile = sketch4
pad4.Length = 22
pad4.Midplane = True
body4 = doc.addObject("PartDesign::Body", "Body003")

sketch5 = body4.newObject("Sketcher::SketchObject", "Sketch004")
sketch5.AttachmentSupport = (doc.getObject("XY_Plane003"), [""])
sketch5.MapMode = "FlatFace"
sketch5.addGeometry(Part.Circle(Vector(-49, -38, 0), Vector(0, 0, 1), 5), False)
sketch5.addConstraint(Sketcher.Constraint("Diameter", 0, Q("10 mm")))
sketch5.addConstraint(Sketcher.Constraint("DistanceX", 0, 3, -1, 1, Q("48.742138 mm")))
sketch5.addConstraint(Sketcher.Constraint("DistanceY", 0, 3, -1, 1, Q("37.982512 mm")))
pad5 = body4.newObject("PartDesign::Pad", "Pad004")
pad5.Profile = sketch5
pad5.Length = 24
pad5.Midplane = True

doc.recompute()
